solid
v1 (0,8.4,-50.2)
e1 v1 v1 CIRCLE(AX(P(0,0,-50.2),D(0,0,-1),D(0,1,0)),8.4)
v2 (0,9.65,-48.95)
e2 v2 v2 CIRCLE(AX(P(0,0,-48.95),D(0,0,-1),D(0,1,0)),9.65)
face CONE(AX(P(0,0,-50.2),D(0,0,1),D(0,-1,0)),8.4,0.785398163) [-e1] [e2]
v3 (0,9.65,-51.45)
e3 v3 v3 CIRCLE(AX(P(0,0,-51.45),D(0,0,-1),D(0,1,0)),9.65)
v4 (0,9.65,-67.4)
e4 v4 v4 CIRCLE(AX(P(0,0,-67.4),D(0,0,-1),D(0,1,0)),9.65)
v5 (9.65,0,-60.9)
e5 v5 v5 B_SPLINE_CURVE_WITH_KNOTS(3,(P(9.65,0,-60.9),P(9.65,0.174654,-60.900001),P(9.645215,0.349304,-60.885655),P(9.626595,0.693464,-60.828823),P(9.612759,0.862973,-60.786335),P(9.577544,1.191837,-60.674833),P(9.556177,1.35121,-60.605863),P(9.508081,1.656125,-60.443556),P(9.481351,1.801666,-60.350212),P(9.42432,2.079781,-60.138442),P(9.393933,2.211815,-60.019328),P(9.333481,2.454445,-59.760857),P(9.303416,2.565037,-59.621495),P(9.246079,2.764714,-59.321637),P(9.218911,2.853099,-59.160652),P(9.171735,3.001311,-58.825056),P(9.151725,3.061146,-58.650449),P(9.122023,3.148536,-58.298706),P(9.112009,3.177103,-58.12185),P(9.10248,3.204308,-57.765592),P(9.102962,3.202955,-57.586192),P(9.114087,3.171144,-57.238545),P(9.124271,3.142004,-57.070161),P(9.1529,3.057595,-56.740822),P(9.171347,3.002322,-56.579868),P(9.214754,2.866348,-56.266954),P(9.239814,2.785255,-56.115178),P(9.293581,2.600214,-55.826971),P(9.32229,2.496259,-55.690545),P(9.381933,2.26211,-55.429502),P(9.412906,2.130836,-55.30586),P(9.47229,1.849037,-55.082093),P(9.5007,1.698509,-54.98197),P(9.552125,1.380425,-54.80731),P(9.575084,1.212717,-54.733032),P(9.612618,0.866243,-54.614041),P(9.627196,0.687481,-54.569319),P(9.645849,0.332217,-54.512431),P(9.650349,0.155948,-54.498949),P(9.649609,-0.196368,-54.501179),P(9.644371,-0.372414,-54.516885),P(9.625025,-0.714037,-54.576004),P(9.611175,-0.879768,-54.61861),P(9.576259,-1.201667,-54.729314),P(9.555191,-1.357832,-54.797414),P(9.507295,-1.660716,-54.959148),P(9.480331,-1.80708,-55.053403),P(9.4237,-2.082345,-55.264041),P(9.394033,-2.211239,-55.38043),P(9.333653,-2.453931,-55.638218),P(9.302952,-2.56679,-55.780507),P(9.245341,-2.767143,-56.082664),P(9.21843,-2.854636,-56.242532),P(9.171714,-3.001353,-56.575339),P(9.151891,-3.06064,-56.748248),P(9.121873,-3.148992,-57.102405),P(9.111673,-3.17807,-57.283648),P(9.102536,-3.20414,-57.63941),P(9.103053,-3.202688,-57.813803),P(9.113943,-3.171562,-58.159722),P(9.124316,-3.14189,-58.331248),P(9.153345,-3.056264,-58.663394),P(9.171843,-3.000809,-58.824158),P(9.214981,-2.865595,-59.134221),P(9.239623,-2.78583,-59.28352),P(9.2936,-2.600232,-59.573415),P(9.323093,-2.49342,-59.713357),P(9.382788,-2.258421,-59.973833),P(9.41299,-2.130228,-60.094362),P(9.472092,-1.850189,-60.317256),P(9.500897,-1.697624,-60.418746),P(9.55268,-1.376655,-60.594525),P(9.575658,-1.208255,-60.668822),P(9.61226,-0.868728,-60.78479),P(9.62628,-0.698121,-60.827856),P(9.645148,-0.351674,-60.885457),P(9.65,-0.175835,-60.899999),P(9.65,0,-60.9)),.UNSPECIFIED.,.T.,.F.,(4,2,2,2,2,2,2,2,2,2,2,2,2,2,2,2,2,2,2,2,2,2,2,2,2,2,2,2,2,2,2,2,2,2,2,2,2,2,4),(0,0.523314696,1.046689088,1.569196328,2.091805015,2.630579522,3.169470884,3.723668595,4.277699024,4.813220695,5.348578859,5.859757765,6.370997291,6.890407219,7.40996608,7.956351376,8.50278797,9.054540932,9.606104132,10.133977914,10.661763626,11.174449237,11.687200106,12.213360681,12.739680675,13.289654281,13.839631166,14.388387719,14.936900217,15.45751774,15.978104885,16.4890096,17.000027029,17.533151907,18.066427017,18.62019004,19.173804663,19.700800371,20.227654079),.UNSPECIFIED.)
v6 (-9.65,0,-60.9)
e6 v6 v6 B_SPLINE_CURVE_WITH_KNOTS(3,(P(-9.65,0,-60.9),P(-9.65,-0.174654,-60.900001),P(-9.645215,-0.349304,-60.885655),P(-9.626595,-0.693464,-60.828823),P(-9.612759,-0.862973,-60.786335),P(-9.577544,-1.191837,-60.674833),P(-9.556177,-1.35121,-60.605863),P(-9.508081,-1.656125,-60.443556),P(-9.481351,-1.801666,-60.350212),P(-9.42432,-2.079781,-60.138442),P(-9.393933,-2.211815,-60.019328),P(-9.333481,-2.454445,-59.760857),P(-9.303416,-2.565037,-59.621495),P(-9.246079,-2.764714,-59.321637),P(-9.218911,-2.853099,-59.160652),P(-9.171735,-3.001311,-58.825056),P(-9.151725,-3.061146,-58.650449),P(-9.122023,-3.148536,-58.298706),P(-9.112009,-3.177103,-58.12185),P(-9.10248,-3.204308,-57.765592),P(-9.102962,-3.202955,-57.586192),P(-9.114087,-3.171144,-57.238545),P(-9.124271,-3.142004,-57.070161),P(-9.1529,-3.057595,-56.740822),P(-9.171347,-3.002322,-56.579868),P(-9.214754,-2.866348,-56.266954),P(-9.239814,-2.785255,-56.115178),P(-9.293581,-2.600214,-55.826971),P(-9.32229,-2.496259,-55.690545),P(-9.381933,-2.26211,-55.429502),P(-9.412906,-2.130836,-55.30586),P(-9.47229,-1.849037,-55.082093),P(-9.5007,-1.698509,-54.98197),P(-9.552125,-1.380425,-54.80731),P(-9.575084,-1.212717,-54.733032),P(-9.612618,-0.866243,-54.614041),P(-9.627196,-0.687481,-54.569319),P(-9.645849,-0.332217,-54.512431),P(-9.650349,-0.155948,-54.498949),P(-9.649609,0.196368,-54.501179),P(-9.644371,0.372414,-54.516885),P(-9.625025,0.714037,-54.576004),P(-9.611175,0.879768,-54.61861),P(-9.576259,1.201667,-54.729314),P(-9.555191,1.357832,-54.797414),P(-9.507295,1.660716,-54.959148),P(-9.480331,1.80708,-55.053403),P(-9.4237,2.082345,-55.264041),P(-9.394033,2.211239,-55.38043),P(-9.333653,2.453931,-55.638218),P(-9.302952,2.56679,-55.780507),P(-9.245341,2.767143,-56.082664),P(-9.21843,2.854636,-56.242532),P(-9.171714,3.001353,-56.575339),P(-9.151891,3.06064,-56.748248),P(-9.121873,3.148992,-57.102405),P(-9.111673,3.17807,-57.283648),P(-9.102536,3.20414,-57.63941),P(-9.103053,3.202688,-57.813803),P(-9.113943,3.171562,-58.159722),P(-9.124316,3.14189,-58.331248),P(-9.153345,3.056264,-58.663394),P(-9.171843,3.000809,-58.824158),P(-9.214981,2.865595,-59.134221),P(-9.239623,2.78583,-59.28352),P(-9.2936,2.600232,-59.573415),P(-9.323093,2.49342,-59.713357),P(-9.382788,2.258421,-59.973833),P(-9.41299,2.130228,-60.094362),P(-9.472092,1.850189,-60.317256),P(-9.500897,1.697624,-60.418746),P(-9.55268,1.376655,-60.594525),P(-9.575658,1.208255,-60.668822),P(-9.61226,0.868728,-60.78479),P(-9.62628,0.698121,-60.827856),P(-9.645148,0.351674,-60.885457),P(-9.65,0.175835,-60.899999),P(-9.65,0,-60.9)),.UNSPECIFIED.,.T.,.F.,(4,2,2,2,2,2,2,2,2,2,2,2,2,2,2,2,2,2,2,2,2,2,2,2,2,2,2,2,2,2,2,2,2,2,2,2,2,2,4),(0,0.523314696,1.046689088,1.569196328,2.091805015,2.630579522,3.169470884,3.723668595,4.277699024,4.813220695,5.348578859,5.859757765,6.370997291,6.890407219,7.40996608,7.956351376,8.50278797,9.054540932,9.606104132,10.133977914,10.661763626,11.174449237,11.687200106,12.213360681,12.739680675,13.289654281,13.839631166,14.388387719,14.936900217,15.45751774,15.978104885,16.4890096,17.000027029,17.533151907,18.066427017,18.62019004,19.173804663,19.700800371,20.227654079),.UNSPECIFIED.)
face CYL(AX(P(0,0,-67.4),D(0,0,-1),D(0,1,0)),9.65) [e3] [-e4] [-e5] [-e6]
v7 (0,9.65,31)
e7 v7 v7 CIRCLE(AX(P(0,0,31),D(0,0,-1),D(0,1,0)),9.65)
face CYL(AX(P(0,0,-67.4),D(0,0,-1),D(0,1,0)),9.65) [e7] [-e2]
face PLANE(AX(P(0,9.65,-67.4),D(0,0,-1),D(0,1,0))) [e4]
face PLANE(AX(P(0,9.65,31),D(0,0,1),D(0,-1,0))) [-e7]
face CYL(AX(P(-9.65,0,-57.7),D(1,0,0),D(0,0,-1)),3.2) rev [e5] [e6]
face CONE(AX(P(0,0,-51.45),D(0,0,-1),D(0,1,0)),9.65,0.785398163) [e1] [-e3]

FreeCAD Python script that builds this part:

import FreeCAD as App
import Part
import Sketcher


def add_polygon(sketch, points):
    """Adds a closed chain of lines whose ends are joined by coincident constraints."""
    first, n = sketch.GeometryCount, len(points)
    for a, b in zip(points, points[1:] + points[:1]):
        sketch.addGeometry(Part.LineSegment(App.Vector(*a, 0), App.Vector(*b, 0)), False)
    for i in range(n):
        sketch.addConstraint(Sketcher.Constraint("Coincident", first + i, 2, first + (i + 1) % n, 1))

doc = App.newDocument("Part")
body = doc.addObject("PartDesign::Body", "Body")

sketch1 = body.newObject("Sketcher::SketchObject", "Sketch")
sketch1.AttachmentSupport = (doc.getObject("YZ_Plane"), [""])
sketch1.MapMode = "FlatFace"
add_polygon(sketch1, [(9.7, -51.5), (8.4, -50.2), (9.7, -49), (9.7, 31), (0, 31), (0, -67.4), (9.7, -67.4)])
sketch1.addConstraint(Sketcher.Constraint("Vertical", 2))
sketch1.addConstraint(Sketcher.Constraint("Horizontal", 3))
sketch1.addConstraint(Sketcher.Constraint("Vertical", 4))
sketch1.addConstraint(Sketcher.Constraint("Horizontal", 5))
sketch1.addConstraint(Sketcher.Constraint("Vertical", 6))
sketch1.addConstraint(Sketcher.Constraint("PointOnObject", 3, 2, -2))
sketch1.addConstraint(Sketcher.Constraint("Perpendicular", 0, 1))
sketch1.addConstraint(Sketcher.Constraint("Vertical", 2, 2, 5, 2))
sketch1.addConstraint(Sketcher.Constraint("Equal", 0, 1))
sketch1.addConstraint(Sketcher.Constraint("DistanceY", 4, 2, 4, 1, 98.4))
sketch1.addConstraint(Sketcher.Constraint("DistanceY", -1, 1, 2, 2, 31.0))
sketch1.addConstraint(Sketcher.Constraint("DistanceX", 3, 2, 3, 1, 9.65))
sketch1.addConstraint(Sketcher.Constraint("DistanceY", 2, 1, 2, 2, 79.95))
sketch1.addConstraint(Sketcher.Constraint("DistanceY", 6, 1, 6, 2, 15.95))
revolution = body.newObject("PartDesign::Revolution", "Revolution")
revolution.Profile = sketch1
revolution.ReferenceAxis = (sketch1, ["V_Axis"])
revolution.Angle = 360

sketch2 = body.newObject("Sketcher::SketchObject", "Sketch001")
sketch2.AttachmentSupport = (doc.getObject("YZ_Plane"), [""])
sketch2.MapMode = "FlatFace"
sketch2.addGeometry(Part.Circle(App.Vector(0, -57.7, 0), App.Vector(0, 0, 1), 3.2), False)
sketch2.addConstraint(Sketcher.Constraint("PointOnObject", 0, 3, -2))
sketch2.addConstraint(Sketcher.Constraint("Diameter", 0, 6.4))
sketch2.addConstraint(Sketcher.Constraint("DistanceY", 0, 3, -1, 1, 57.7))
pocket1 = body.newObject("PartDesign::Pocket", "Pocket")
pocket1.Profile = sketch2
pocket1.Type = "ThroughAll"
pocket1.Midplane = True

doc.recompute()
